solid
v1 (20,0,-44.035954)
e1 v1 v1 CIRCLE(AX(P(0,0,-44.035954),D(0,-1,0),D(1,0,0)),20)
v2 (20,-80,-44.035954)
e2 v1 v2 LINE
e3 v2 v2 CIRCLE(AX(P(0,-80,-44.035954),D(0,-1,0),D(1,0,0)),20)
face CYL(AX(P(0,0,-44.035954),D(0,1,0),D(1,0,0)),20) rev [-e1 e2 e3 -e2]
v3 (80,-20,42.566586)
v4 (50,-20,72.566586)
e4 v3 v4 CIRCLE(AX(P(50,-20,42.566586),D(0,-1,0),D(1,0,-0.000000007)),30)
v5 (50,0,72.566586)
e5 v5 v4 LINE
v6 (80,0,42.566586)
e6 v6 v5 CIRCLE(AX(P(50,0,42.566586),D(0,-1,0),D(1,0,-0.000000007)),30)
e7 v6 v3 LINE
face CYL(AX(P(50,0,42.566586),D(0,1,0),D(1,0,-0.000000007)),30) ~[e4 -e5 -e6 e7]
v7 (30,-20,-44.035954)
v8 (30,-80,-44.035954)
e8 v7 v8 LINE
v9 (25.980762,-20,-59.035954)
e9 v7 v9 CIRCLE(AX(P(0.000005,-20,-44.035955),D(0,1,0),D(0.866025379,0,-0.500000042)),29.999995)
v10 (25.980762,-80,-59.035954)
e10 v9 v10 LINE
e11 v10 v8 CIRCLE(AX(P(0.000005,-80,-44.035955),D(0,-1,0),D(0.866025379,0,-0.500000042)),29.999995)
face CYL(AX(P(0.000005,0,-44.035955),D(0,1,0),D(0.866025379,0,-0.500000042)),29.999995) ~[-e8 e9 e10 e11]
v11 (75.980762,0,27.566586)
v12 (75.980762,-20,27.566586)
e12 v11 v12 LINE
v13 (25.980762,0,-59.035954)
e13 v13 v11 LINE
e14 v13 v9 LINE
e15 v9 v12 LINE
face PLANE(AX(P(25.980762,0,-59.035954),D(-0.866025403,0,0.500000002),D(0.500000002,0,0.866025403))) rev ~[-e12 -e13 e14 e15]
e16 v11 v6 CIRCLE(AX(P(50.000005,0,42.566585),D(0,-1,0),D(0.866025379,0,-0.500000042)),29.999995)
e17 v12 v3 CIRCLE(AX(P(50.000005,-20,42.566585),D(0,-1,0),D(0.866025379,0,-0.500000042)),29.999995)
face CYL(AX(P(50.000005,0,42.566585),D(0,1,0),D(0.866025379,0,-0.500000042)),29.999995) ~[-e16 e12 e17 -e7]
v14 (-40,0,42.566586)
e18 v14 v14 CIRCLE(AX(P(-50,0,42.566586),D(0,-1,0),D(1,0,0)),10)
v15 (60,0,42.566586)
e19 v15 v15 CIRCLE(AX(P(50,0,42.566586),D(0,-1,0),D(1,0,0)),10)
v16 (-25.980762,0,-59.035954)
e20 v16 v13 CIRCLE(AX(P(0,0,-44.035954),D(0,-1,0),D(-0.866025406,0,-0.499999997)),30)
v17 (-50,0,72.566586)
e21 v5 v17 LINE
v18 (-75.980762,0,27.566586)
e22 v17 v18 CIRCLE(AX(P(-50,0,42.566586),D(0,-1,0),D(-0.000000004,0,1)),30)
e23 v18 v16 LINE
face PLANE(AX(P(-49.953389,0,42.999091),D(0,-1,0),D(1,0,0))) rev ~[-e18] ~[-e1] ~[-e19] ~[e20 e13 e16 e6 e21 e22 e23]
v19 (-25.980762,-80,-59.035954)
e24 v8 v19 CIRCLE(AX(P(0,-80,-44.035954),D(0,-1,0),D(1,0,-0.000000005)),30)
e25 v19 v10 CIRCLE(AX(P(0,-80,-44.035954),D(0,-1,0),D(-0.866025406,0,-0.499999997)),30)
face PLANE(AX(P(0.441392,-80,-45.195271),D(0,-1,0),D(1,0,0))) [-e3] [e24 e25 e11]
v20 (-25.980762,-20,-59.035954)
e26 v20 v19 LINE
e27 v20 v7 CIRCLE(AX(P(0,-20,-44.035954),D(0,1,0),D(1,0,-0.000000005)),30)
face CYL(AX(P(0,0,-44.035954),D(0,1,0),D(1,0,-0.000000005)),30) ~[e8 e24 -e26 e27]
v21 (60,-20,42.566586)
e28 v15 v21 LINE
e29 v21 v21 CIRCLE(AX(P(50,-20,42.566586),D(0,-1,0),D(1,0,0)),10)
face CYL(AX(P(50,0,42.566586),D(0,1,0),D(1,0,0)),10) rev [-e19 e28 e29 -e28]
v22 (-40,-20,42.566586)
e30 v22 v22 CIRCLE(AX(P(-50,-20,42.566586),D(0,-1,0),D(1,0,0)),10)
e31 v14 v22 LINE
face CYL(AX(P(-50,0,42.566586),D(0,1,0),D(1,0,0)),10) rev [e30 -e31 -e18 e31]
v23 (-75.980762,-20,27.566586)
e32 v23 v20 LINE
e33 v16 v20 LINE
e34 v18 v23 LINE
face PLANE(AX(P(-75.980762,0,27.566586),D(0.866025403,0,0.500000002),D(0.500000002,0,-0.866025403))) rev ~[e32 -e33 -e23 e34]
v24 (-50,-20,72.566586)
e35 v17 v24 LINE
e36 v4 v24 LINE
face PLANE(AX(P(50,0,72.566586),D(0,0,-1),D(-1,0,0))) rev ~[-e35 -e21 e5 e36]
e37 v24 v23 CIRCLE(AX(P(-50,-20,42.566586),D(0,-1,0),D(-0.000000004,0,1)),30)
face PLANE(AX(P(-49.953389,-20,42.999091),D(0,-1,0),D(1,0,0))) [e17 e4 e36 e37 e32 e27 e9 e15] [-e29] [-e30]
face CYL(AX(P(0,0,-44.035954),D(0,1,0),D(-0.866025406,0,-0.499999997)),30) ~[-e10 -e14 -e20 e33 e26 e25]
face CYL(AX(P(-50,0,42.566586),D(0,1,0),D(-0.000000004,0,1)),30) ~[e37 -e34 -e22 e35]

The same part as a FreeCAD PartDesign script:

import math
import FreeCAD as App
import Part
import Sketcher
from FreeCAD import Vector
Q = App.Units.Quantity

doc = App.newDocument("Part")
body = doc.addObject("PartDesign::Body", "Body")

# Sketch on XZ plane
sketch1 = doc.addObject("Sketcher::SketchObject", "Sketch")
body.addObject(sketch1)
sketch1.AttachmentSupport = (doc.XZ_Plane, [""])
sketch1.MapMode = "FlatFace"
sketch1.addGeometry(Part.ArcOfCircle(Part.Circle(Vector(-50, 42.566586, 0), Vector(0, 0, 1), 30), math.radians(90), math.radians(210)), False)
sketch1.addGeometry(Part.LineSegment(Vector(-75.980762, 27.566586, 0), Vector(-25.980762, -59.035954, 0)), False)
sketch1.addGeometry(Part.ArcOfCircle(Part.Circle(Vector(0, -44.035954, 0), Vector(0, 0, 1), 30), math.radians(-150), math.radians(-30)), False)
sketch1.addGeometry(Part.LineSegment(Vector(25.980762, -59.035954, 0), Vector(75.980762, 27.566586, 0)), False)
sketch1.addGeometry(Part.ArcOfCircle(Part.Circle(Vector(50.000005, 42.566585, 0), Vector(0, 0, 1), 29.999995), math.radians(-30.000003), math.radians(0.000002)), False)
sketch1.addGeometry(Part.ArcOfCircle(Part.Circle(Vector(50, 42.566586, 0), Vector(0, 0, 1), 30), math.radians(0), math.radians(90)), False)
sketch1.addGeometry(Part.LineSegment(Vector(50, 72.566586, 0), Vector(-50, 72.566586, 0)), False)
sketch1.addGeometry(Part.Circle(Vector(0, -44.035954, 0), Vector(0, 0, 1), 20), False)
sketch1.addGeometry(Part.Circle(Vector(-50, 42.566586, 0), Vector(0, 0, 1), 10), False)
sketch1.addGeometry(Part.Circle(Vector(50, 42.566586, 0), Vector(0, 0, 1), 10), False)
sketch1.addConstraint(Sketcher.Constraint("Tangent", 0, 2, 1, 1))
sketch1.addConstraint(Sketcher.Constraint("Tangent", 1, 2, 2, 1))
sketch1.addConstraint(Sketcher.Constraint("Tangent", 2, 2, 3, 1))
sketch1.addConstraint(Sketcher.Constraint("Tangent", 3, 2, 4, 1))
sketch1.addConstraint(Sketcher.Constraint("Tangent", 4, 2, 5, 1))
sketch1.addConstraint(Sketcher.Constraint("Tangent", 5, 2, 6, 1))
sketch1.addConstraint(Sketcher.Constraint("Tangent", 6, 2, 0, 1))
sketch1.addConstraint(Sketcher.Constraint("Horizontal", 6))
sketch1.addConstraint(Sketcher.Constraint("Coincident", 7, 3, 2, 3))
sketch1.addConstraint(Sketcher.Constraint("Coincident", 8, 3, 0, 3))
sketch1.addConstraint(Sketcher.Constraint("Coincident", 9, 3, 4, 3))
sketch1.addConstraint(Sketcher.Constraint("Equal", 0, 2))
sketch1.addConstraint(Sketcher.Constraint("Equal", 2, 5))
sketch1.addConstraint(Sketcher.Constraint("Equal", 8, 9))
sketch1.addConstraint(Sketcher.Constraint("Symmetric", 1, 2, 2, 2, -2))
sketch1.addConstraint(Sketcher.Constraint("Horizontal", 0, 2, 3, 2))
sketch1.addConstraint(Sketcher.Constraint("Horizontal", 9, 3, 4, 2))
sketch1.addConstraint(Sketcher.Constraint("Diameter", 7, 40.0))
sketch1.addConstraint(Sketcher.Constraint("Diameter", 8, 20.0))
sketch1.addConstraint(Sketcher.Constraint("Radius", 0, 30.0))
sketch1.addConstraint(Sketcher.Constraint("DistanceX", 6, 2, 6, 1, 100.0))
sketch1.addConstraint(Sketcher.Constraint("Angle", 1, Q("-60 deg")))
sketch1.addConstraint(Sketcher.Constraint("DistanceY", -1, 1, 0, 3, 42.566586))
pad1 = doc.addObject("PartDesign::Pad", "Pad")
body.addObject(pad1)
pad1.Profile = sketch1
pad1.Length = 20

# Sketch on XZ plane
sketch2 = doc.addObject("Sketcher::SketchObject", "Sketch001")
body.addObject(sketch2)
sketch2.AttachmentSupport = (doc.XZ_Plane, [""])
sketch2.MapMode = "FlatFace"
sketch2.addGeometry(Part.ArcOfCircle(Part.Circle(Vector(0, -44.035954, 0), Vector(0, 0, 1), 30), math.radians(0), math.radians(210)), False)
sketch2.addGeometry(Part.ArcOfCircle(Part.Circle(Vector(0, -44.035954, 0), Vector(0, 0, 1), 30), math.radians(-150), math.radians(-30)), False)
sketch2.addGeometry(Part.ArcOfCircle(Part.Circle(Vector(0.000005, -44.035955, 0), Vector(0, 0, 1), 29.999995), math.radians(-30.000003), math.radians(0.000002)), False)
sketch2.addGeometry(Part.Circle(Vector(0, -44.035954, 0), Vector(0, 0, 1), 20), False)
sketch2.addConstraint(Sketcher.Constraint("Tangent", 0, 2, 1, 1))
sketch2.addConstraint(Sketcher.Constraint("Tangent", 1, 2, 2, 1))
sketch2.addConstraint(Sketcher.Constraint("Tangent", 2, 2, 0, 1))
sketch2.addConstraint(Sketcher.Constraint("Coincident", 3, 3, 0, 3))
sketch2.addConstraint(Sketcher.Constraint("Symmetric", 0, 2, 1, 2, -2))
sketch2.addConstraint(Sketcher.Constraint("Horizontal", 3, 3, 2, 2))
sketch2.addConstraint(Sketcher.Constraint("Diameter", 3, 40.0))
sketch2.addConstraint(Sketcher.Constraint("Radius", 0, 30.0))
sketch2.addConstraint(Sketcher.Constraint("DistanceY", 0, 2, 1, 3, 15.0))
sketch2.addConstraint(Sketcher.Constraint("DistanceY", 0, 3, -1, 1, 44.035954))
pad2 = doc.addObject("PartDesign::Pad", "Pad001")
body.addObject(pad2)
pad2.Profile = sketch2
pad2.Length = 80

doc.recompute()
